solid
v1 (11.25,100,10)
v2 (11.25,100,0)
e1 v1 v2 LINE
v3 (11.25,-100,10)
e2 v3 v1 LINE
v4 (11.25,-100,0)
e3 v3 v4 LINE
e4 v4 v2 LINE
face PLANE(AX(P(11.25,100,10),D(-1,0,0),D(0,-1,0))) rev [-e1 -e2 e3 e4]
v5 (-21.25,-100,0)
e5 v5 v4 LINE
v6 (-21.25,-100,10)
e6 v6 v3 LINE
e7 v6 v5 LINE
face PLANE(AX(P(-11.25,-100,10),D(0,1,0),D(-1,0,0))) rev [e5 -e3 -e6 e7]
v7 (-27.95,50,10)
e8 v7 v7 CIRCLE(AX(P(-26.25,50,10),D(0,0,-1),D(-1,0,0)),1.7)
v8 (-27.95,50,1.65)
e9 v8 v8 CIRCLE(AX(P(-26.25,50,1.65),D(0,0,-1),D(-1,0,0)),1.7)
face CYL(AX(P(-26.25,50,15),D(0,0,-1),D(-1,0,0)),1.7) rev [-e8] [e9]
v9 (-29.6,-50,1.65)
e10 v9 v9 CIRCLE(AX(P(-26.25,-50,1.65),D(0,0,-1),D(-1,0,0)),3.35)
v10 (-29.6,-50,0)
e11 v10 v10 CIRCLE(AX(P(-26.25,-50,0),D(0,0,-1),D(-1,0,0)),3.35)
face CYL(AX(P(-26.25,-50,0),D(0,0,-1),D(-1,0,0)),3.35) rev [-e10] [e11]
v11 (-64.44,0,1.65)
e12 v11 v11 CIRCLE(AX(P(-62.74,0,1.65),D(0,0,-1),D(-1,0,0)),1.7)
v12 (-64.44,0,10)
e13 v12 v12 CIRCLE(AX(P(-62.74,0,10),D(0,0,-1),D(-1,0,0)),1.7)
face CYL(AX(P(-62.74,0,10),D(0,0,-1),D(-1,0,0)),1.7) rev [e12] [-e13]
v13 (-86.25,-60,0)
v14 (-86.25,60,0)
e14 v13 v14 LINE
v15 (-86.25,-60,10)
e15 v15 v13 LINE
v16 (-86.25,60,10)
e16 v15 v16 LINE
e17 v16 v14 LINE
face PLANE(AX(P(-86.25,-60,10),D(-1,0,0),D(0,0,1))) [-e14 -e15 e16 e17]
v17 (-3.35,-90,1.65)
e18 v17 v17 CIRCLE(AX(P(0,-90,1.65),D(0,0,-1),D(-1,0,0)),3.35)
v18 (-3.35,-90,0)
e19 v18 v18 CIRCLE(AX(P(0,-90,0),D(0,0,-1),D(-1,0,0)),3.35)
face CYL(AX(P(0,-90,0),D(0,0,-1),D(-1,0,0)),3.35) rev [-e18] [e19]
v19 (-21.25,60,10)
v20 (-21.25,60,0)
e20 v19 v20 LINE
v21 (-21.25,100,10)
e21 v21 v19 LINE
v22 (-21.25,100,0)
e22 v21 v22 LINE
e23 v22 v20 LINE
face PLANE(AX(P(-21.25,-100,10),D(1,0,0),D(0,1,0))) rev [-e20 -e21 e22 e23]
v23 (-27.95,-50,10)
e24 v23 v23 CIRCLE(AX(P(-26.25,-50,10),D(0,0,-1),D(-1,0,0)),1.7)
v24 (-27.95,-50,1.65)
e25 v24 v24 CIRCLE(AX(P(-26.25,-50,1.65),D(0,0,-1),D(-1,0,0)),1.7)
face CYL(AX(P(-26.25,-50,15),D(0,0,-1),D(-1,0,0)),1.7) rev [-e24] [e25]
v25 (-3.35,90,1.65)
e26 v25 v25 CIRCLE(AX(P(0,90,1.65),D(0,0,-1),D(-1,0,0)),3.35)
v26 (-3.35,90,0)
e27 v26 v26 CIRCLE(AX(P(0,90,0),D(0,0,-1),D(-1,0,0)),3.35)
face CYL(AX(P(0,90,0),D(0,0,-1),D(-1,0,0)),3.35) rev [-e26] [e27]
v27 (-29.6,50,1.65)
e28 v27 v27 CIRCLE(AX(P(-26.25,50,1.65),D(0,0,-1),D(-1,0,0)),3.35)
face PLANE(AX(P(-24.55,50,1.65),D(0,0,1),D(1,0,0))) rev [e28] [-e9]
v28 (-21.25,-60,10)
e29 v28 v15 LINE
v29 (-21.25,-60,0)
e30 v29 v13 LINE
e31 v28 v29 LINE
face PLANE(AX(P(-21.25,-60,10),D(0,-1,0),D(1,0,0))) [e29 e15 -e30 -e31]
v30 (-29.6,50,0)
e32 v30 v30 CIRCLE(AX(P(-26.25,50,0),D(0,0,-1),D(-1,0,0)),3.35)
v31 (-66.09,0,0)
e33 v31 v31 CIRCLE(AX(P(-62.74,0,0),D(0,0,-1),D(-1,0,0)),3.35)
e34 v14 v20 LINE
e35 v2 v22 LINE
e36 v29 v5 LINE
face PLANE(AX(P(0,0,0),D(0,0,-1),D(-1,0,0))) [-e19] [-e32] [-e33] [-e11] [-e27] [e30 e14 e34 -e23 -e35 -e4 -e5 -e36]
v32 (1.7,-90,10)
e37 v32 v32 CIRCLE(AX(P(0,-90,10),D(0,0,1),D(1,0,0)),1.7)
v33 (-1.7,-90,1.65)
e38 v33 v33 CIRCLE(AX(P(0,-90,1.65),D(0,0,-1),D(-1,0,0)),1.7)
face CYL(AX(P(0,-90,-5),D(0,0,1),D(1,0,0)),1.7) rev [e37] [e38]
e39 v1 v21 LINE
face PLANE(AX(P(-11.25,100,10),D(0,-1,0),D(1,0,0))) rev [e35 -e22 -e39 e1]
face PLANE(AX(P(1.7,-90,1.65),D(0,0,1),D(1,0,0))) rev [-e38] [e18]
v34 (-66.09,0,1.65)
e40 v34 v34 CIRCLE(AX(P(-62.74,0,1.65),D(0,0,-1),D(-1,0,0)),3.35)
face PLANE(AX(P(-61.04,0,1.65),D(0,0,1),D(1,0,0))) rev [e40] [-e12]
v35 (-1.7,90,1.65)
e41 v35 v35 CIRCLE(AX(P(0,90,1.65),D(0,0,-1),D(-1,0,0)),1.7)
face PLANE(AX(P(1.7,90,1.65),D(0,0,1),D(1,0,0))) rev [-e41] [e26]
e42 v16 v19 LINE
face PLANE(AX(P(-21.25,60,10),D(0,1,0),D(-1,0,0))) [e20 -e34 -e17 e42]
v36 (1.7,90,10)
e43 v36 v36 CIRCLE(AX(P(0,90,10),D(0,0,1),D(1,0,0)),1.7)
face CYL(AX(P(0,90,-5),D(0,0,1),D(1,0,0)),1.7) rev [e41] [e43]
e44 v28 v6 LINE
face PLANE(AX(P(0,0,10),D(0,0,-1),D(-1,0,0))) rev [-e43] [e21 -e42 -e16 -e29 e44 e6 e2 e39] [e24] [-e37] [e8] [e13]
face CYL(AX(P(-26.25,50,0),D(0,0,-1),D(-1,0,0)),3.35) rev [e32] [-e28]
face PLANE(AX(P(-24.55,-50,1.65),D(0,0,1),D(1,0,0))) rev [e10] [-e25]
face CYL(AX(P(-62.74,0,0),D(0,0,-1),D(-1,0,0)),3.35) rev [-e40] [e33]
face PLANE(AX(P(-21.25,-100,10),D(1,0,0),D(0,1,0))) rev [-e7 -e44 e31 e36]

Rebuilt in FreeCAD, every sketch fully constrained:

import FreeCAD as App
import Part
import Sketcher
from FreeCAD import Vector
Q = App.Units.Quantity


def add_polygon(sketch, points):
    """Adds a closed chain of lines whose ends are joined by coincident constraints."""
    first, n = sketch.GeometryCount, len(points)
    for a, b in zip(points, points[1:] + points[:1]):
        sketch.addGeometry(Part.LineSegment(App.Vector(*a, 0), App.Vector(*b, 0)), False)
    for i in range(n):
        sketch.addConstraint(Sketcher.Constraint("Coincident", first + i, 2, first + (i + 1) % n, 1))

doc = App.newDocument("Part")
body = doc.addObject("PartDesign::Body", "Body")

sketch1 = doc.addObject("Sketcher::SketchObject", "Sketch")
body.addObject(sketch1)
sketch1.AttachmentSupport = (doc.XY_Plane, [""])
sketch1.MapMode = "FlatFace"
add_polygon(sketch1, [(-21, -100), (11, -100), (11, 100), (-21, 100)])
sketch1.addConstraint([
    Sketcher.Constraint("Horizontal", 0),
    Sketcher.Constraint("Vertical", 1),
    Sketcher.Constraint("Horizontal", 2),
    Sketcher.Constraint("Vertical", 3),
    Sketcher.Constraint("DistanceY", 1, 1, 1, 2, Q("200 mm")),
    Sketcher.Constraint("DistanceX", 0, 1, 0, 2, Q("32.5 mm")),
    Sketcher.Constraint("DistanceY", 0, 2, -1, 1, Q("100 mm")),
    Sketcher.Constraint("DistanceX", -1, 1, 0, 2, Q("11.25 mm")),
])
pad1 = doc.addObject("PartDesign::Pad", "Pad")
body.addObject(pad1)
pad1.Profile = sketch1
pad1.Length = 10

sketch2 = doc.addObject("Sketcher::SketchObject", "Sketch001")
body.addObject(sketch2)
sketch2.AttachmentSupport = (doc.XY_Plane, [""])
sketch2.MapMode = "FlatFace"
sketch2.AttachmentOffset = App.Placement(Vector(0, 0, 10), App.Rotation())
sketch2.addGeometry([
    Part.Circle(Vector(0, 90, 0), Vector(0, 0, 1), 1.7),
    Part.Circle(Vector(0, -90, 0), Vector(0, 0, 1), 1.7),
], False)
sketch2.addConstraint([
    Sketcher.Constraint("Equal", 0, 1),
    Sketcher.Constraint("Symmetric", 0, 3, 1, 3, -1, 1),
    Sketcher.Constraint("PointOnObject", 0, 3, -2),
    Sketcher.Constraint("Diameter", 0, Q("3.4 mm")),
    Sketcher.Constraint("DistanceY", -1, 1, 0, 3, Q("90 mm")),
])
pocket1 = doc.addObject("PartDesign::Pocket", "Pocket")
body.addObject(pocket1)
pocket1.Profile = sketch2
pocket1.Length = 15

sketch3 = doc.addObject("Sketcher::SketchObject", "Sketch002")
body.addObject(sketch3)
sketch3.AttachmentSupport = (doc.XY_Plane, [""])
sketch3.MapMode = "FlatFace"
sketch3.addGeometry(Part.Circle(Vector(0, 90, 0), Vector(0, 0, 1), 1.7), False)
sketch3.addConstraint([
    Sketcher.Constraint("PointOnObject", 0, 3, -2),
    Sketcher.Constraint("Diameter", 0, Q("3.4 mm")),
    Sketcher.Constraint("DistanceY", -1, 1, 0, 3, Q("90 mm")),
])
doc.recompute()
hole = doc.addObject("PartDesign::Hole", "Hole")
body.addObject(hole)
hole.Profile = sketch3
hole.ThreadType = "None"
hole.Diameter = 3.4
hole.DepthType = "Dimension"
hole.Depth = 3.15
hole.DrillPoint = "Angled"
hole.DrillPointAngle = 118
hole.HoleCutType = "Counterbore"
hole.HoleCutDiameter = 6.7
hole.HoleCutDepth = 1.65
hole.Reversed = True

sketch4 = doc.addObject("Sketcher::SketchObject", "Sketch003")
body.addObject(sketch4)
sketch4.AttachmentSupport = (doc.XY_Plane, [""])
sketch4.MapMode = "FlatFace"
sketch4.addGeometry(Part.Circle(Vector(0, -90, 0), Vector(0, 0, 1), 1.7), False)
sketch4.addConstraint([
    Sketcher.Constraint("PointOnObject", 0, 3, -2),
    Sketcher.Constraint("Diameter", 0, Q("3.4 mm")),
    Sketcher.Constraint("DistanceY", 0, 3, -1, 1, Q("90 mm")),
])
doc.recompute()
hole2 = doc.addObject("PartDesign::Hole", "Hole001")
body.addObject(hole2)
hole2.Profile = sketch4
hole2.ThreadType = "None"
hole2.Diameter = 3.4
hole2.DepthType = "Dimension"
hole2.Depth = 3.15
hole2.DrillPoint = "Angled"
hole2.DrillPointAngle = 118
hole2.HoleCutType = "Counterbore"
hole2.HoleCutDiameter = 6.7
hole2.HoleCutDepth = 1.65
hole2.Reversed = True

sketch5 = doc.addObject("Sketcher::SketchObject", "Sketch004")
body.addObject(sketch5)
sketch5.AttachmentSupport = (doc.XY_Plane, [""])
sketch5.MapMode = "FlatFace"
add_polygon(sketch5, [(-86, -60), (-86, 60), (-21, 60), (-21, -60)])
sketch5.addConstraint([
    Sketcher.Constraint("Vertical", 0),
    Sketcher.Constraint("Horizontal", 1),
    Sketcher.Constraint("Vertical", 2),
    Sketcher.Constraint("Horizontal", 3),
    Sketcher.Constraint("DistanceX", 1, 1, 1, 2, Q("65 mm")),
    Sketcher.Constraint("DistanceY", 0, 1, 0, 2, Q("120 mm")),
    Sketcher.Constraint("DistanceY", -1, 1, 0, 2, Q("60 mm")),
    Sketcher.Constraint("DistanceX", 0, 2, -1, 1, Q("86.25 mm")),
])
pad2 = doc.addObject("PartDesign::Pad", "Pad001")
body.addObject(pad2)
pad2.Profile = sketch5
pad2.Length = 10

sketch6 = doc.addObject("Sketcher::SketchObject", "Sketch005")
body.addObject(sketch6)
sketch6.AttachmentSupport = (doc.XY_Plane, [""])
sketch6.MapMode = "FlatFace"
sketch6.AttachmentOffset = App.Placement(Vector(0, 0, 10), App.Rotation())
add_polygon(sketch6, [(-31, 60), (-31, -60), (-21, -60), (-21, 60)])
sketch6.addConstraint([
    Sketcher.Constraint("Vertical", 0),
    Sketcher.Constraint("Horizontal", 1),
    Sketcher.Constraint("Vertical", 2),
    Sketcher.Constraint("Horizontal", 3),
    Sketcher.Constraint("DistanceX", 1, 1, 1, 2, Q("10 mm")),
    Sketcher.Constraint("DistanceY", 0, 2, 0, 1, Q("120 mm")),
    Sketcher.Constraint("DistanceY", 0, 2, -1, 1, Q("60 mm")),
    Sketcher.Constraint("DistanceX", 0, 2, -1, 1, Q("31.25 mm")),
])
pad3 = doc.addObject("PartDesign::Pad", "Pad002")
body.addObject(pad3)
pad3.Profile = sketch6
pad3.Length = 12

sketch7 = doc.addObject("Sketcher::SketchObject", "Sketch006")
body.addObject(sketch7)
sketch7.AttachmentSupport = (doc.XY_Plane, [""])
sketch7.MapMode = "FlatFace"
sketch7.AttachmentOffset = App.Placement(Vector(0, 0, 22), App.Rotation())
add_polygon(sketch7, [(-86, 60), (-86, -60), (-21, -60), (-21, 60)])
sketch7.addConstraint([
    Sketcher.Constraint("Vertical", 0),
    Sketcher.Constraint("Horizontal", 1),
    Sketcher.Constraint("Vertical", 2),
    Sketcher.Constraint("Horizontal", 3),
    Sketcher.Constraint("DistanceX", 1, 1, 1, 2, Q("65 mm")),
    Sketcher.Constraint("DistanceY", 0, 2, 0, 1, Q("120 mm")),
    Sketcher.Constraint("DistanceY", 0, 2, -1, 1, Q("60 mm")),
    Sketcher.Constraint("DistanceX", 0, 2, -1, 1, Q("86.25 mm")),
])
pad4 = doc.addObject("PartDesign::Pad", "Pad003")
body.addObject(pad4)
pad4.Profile = sketch7
pad4.Length = 7

sketch8 = doc.addObject("Sketcher::SketchObject", "Sketch007")
body.addObject(sketch8)
sketch8.AttachmentSupport = (doc.XY_Plane, [""])
sketch8.MapMode = "FlatFace"
sketch8.AttachmentOffset = App.Placement(Vector(0, 0, 22), App.Rotation())
sketch8.addGeometry(Part.Circle(Vector(-63, 0, 0), Vector(0, 0, 1), 11), False)
sketch8.addConstraint([
    Sketcher.Constraint("PointOnObject", 0, 3, -1),
    Sketcher.Constraint("Diameter", 0, Q("22 mm")),
    Sketcher.Constraint("DistanceX", 0, 3, -1, 1, Q("62.74 mm")),
])
pad5 = doc.addObject("PartDesign::Pad", "Pad004")
body.addObject(pad5)
pad5.Profile = sketch8
pad5.Length = 12
pad5.Reversed = True

sketch9 = doc.addObject("Sketcher::SketchObject", "Sketch008")
body.addObject(sketch9)
sketch9.AttachmentSupport = (doc.XY_Plane, [""])
sketch9.MapMode = "FlatFace"
sketch9.AttachmentOffset = App.Placement(Vector(0, 0, 29), App.Rotation())
add_polygon(sketch9, [(-86, 60), (-86, -60), (-21, -60), (-21, 60)])
sketch9.addConstraint([
    Sketcher.Constraint("Vertical", 0),
    Sketcher.Constraint("Horizontal", 1),
    Sketcher.Constraint("Vertical", 2),
    Sketcher.Constraint("Horizontal", 3),
    Sketcher.Constraint("DistanceX", 1, 1, 1, 2, Q("65 mm")),
    Sketcher.Constraint("DistanceY", 0, 2, 0, 1, Q("120 mm")),
    Sketcher.Constraint("DistanceY", 0, 2, -1, 1, Q("60 mm")),
    Sketcher.Constraint("DistanceX", 0, 2, -1, 1, Q("86.25 mm")),
])
pocket2 = doc.addObject("PartDesign::Pocket", "Pocket001")
body.addObject(pocket2)
pocket2.Profile = sketch9
pocket2.Length = 19

sketch10 = doc.addObject("Sketcher::SketchObject", "Sketch009")
body.addObject(sketch10)
sketch10.AttachmentSupport = (doc.XY_Plane, [""])
sketch10.MapMode = "FlatFace"
sketch10.addGeometry([
    Part.Circle(Vector(-26.2, -50, 0), Vector(0, 0, 1), 1.7),
    Part.Circle(Vector(-26.2, 50, 0), Vector(0, 0, 1), 1.7),
], False)
sketch10.addConstraint([
    Sketcher.Constraint("Equal", 0, 1),
    Sketcher.Constraint("Symmetric", 0, 3, 1, 3, -1),
    Sketcher.Constraint("Diameter", 0, Q("3.4 mm")),
    Sketcher.Constraint("DistanceY", 0, 3, -1, 1, Q("50 mm")),
    Sketcher.Constraint("DistanceX", 0, 3, -1, 1, Q("26.25 mm")),
])
pocket3 = doc.addObject("PartDesign::Pocket", "Pocket002")
body.addObject(pocket3)
pocket3.Profile = sketch10
pocket3.Length = 15
pocket3.Reversed = True

sketch11 = doc.addObject("Sketcher::SketchObject", "Sketch010")
body.addObject(sketch11)
sketch11.AttachmentSupport = (doc.XY_Plane, [""])
sketch11.MapMode = "FlatFace"
sketch11.addGeometry([
    Part.Circle(Vector(-26.2, -50, 0), Vector(0, 0, 1), 1.7),
    Part.Circle(Vector(-26.2, 50, 0), Vector(0, 0, 1), 1.7),
], False)
sketch11.addConstraint([
    Sketcher.Constraint("Equal", 0, 1),
    Sketcher.Constraint("Symmetric", 0, 3, 1, 3, -1),
    Sketcher.Constraint("Diameter", 0, Q("3.4 mm")),
    Sketcher.Constraint("DistanceY", 0, 3, -1, 1, Q("50 mm")),
    Sketcher.Constraint("DistanceX", 0, 3, -1, 1, Q("26.25 mm")),
])
doc.recompute()
hole3 = doc.addObject("PartDesign::Hole", "Hole002")
body.addObject(hole3)
hole3.Profile = sketch11
hole3.ThreadType = "None"
hole3.Diameter = 3.4
hole3.DepthType = "Dimension"
hole3.Depth = 3.15
hole3.DrillPoint = "Angled"
hole3.DrillPointAngle = 118
hole3.HoleCutType = "Counterbore"
hole3.HoleCutDiameter = 6.7
hole3.HoleCutDepth = 1.65
hole3.Reversed = True

sketch12 = doc.addObject("Sketcher::SketchObject", "Sketch011")
body.addObject(sketch12)
sketch12.AttachmentSupport = (doc.XY_Plane, [""])
sketch12.MapMode = "FlatFace"
sketch12.addGeometry(Part.Circle(Vector(-62.7, 0, 0), Vector(0, 0, 1), 1.7), False)
sketch12.addConstraint([
    Sketcher.Constraint("PointOnObject", 0, 3, -1),
    Sketcher.Constraint("Diameter", 0, Q("3.4 mm")),
    Sketcher.Constraint("DistanceX", 0, 3, -1, 1, Q("62.74 mm")),
])
pocket4 = doc.addObject("PartDesign::Pocket", "Pocket003")
body.addObject(pocket4)
pocket4.Profile = sketch12
pocket4.Length = 10
pocket4.Reversed = True

sketch13 = doc.addObject("Sketcher::SketchObject", "Sketch012")
body.addObject(sketch13)
sketch13.AttachmentSupport = (doc.XY_Plane, [""])
sketch13.MapMode = "FlatFace"
sketch13.addGeometry(Part.Circle(Vector(-62.7, 0, 0), Vector(0, 0, 1), 1.7), False)
sketch13.addConstraint([
    Sketcher.Constraint("PointOnObject", 0, 3, -1),
    Sketcher.Constraint("Diameter", 0, Q("3.4 mm")),
    Sketcher.Constraint("DistanceX", 0, 3, -1, 1, Q("62.74 mm")),
])
doc.recompute()
hole4 = doc.addObject("PartDesign::Hole", "Hole003")
body.addObject(hole4)
hole4.Profile = sketch13
hole4.ThreadType = "None"
hole4.Diameter = 3.4
hole4.DepthType = "Dimension"
hole4.Depth = 3.15
hole4.DrillPoint = "Angled"
hole4.DrillPointAngle = 118
hole4.HoleCutType = "Counterbore"
hole4.HoleCutDiameter = 6.7
hole4.HoleCutDepth = 1.65
hole4.Reversed = True

doc.recompute()
